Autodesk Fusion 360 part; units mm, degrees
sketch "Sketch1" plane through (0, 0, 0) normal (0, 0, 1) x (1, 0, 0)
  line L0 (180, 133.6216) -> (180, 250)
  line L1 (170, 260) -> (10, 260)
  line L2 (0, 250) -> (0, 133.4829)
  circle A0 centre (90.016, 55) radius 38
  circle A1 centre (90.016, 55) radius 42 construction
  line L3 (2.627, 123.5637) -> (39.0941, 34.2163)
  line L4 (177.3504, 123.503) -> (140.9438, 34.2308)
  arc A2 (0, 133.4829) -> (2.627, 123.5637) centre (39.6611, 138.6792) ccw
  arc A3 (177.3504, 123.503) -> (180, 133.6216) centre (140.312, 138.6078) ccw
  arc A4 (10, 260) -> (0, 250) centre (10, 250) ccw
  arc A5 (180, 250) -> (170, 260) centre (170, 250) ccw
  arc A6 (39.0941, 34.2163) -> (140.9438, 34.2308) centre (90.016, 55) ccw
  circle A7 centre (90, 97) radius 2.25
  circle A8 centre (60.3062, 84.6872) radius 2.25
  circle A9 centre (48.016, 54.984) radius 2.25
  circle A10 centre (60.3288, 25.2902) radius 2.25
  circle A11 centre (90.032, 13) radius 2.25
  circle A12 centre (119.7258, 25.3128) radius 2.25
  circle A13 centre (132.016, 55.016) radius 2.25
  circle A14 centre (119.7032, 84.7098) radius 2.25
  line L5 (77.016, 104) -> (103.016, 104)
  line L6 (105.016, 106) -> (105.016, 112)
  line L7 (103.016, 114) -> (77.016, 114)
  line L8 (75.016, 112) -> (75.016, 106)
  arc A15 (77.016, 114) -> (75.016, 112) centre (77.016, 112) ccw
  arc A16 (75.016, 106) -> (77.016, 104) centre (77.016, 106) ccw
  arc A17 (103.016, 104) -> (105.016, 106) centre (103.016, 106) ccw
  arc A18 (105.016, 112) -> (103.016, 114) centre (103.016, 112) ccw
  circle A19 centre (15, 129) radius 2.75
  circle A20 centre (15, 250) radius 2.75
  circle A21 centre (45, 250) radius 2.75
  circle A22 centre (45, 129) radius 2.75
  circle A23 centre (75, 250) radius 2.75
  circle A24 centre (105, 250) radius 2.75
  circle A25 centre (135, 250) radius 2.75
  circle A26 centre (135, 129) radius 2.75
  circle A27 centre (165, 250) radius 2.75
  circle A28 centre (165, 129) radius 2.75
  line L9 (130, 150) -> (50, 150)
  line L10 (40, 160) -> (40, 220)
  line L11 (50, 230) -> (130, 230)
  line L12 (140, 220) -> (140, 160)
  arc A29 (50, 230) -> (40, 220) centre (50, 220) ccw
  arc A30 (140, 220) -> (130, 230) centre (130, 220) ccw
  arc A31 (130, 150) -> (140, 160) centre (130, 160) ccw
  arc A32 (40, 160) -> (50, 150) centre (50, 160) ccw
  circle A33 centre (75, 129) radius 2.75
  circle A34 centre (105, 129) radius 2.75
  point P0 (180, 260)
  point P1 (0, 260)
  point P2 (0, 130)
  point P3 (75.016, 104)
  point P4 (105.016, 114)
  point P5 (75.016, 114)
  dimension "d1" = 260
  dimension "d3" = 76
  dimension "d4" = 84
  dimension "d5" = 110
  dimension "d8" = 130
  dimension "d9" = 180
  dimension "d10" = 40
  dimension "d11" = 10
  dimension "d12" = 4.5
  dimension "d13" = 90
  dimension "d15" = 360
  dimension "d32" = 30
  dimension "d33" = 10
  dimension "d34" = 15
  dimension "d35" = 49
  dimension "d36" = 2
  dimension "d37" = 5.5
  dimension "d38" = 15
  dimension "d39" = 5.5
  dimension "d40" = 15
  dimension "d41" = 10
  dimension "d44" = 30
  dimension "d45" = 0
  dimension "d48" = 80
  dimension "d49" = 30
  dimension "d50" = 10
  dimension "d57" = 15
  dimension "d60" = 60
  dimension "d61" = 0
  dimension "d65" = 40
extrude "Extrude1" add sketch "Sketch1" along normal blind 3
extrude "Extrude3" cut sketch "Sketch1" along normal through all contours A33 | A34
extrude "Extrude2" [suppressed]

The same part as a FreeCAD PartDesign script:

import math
import FreeCAD as App
import Part
import Sketcher

V = App.Vector

doc = App.newDocument("Part")
body = doc.addObject("PartDesign::Body", "Body")

sketch1 = body.newObject("Sketcher::SketchObject", "Sketch")
sketch1.AttachmentSupport = (doc.getObject("XY_Plane"), [""])
sketch1.MapMode = "FlatFace"
sketch1.addGeometry(Part.ArcOfCircle(Part.Circle(V(140.3, 138.6, 0), V(0, 0, 1), 40), math.radians(-22.19), math.radians(-7.16)), False)
sketch1.addGeometry(Part.LineSegment(V(180, 133.6, 0), V(180, 250, 0)), False)
sketch1.addGeometry(Part.ArcOfCircle(Part.Circle(V(170, 250, 0), V(0, 0, 1), 10), math.radians(0), math.radians(90)), False)
sketch1.addGeometry(Part.LineSegment(V(170, 260, 0), V(10, 260, 0)), False)
sketch1.addGeometry(Part.ArcOfCircle(Part.Circle(V(10, 250, 0), V(0, 0, 1), 10), math.radians(90), math.radians(180)), False)
sketch1.addGeometry(Part.LineSegment(V(0, 250, 0), V(0, 133.5, 0)), False)
sketch1.addGeometry(Part.ArcOfCircle(Part.Circle(V(39.7, 138.7, 0), V(0, 0, 1), 40), math.radians(-172.54), math.radians(-157.8)), False)
sketch1.addGeometry(Part.LineSegment(V(2.6, 123.6, 0), V(39.1, 34.2, 0)), False)
sketch1.addGeometry(Part.ArcOfCircle(Part.Circle(V(90, 55, 0), V(0, 0, 1), 55), math.radians(-158), math.radians(-22)), False)
sketch1.addGeometry(Part.LineSegment(V(140.9, 34.2, 0), V(177.4, 123.5, 0)), False)
sketch1.addGeometry(Part.Circle(V(60.3, 25.3, 0), V(0, 0, 1), 2.2), False)
sketch1.addGeometry(Part.Circle(V(48, 55, 0), V(0, 0, 1), 2.2), False)
sketch1.addGeometry(Part.Circle(V(15, 129, 0), V(0, 0, 1), 2.8), False)
sketch1.addGeometry(Part.Circle(V(60.3, 84.7, 0), V(0, 0, 1), 2.2), False)
sketch1.addGeometry(Part.Circle(V(45, 129, 0), V(0, 0, 1), 2.8), False)
sketch1.addGeometry(Part.Circle(V(75, 129, 0), V(0, 0, 1), 2.8), False)
sketch1.addGeometry(Part.Circle(V(90, 13, 0), V(0, 0, 1), 2.2), False)
sketch1.addGeometry(Part.Circle(V(119.7, 25.3, 0), V(0, 0, 1), 2.2), False)
sketch1.addGeometry(Part.Circle(V(90, 55, 0), V(0, 0, 1), 38), False)
sketch1.addGeometry(Part.Circle(V(132, 55, 0), V(0, 0, 1), 2.2), False)
sketch1.addGeometry(Part.Circle(V(90, 97, 0), V(0, 0, 1), 2.2), False)
sketch1.addGeometry(Part.Circle(V(119.7, 84.7, 0), V(0, 0, 1), 2.2), False)
sketch1.addGeometry(Part.LineSegment(V(103, 104, 0), V(77, 104, 0)), False)
sketch1.addGeometry(Part.ArcOfCircle(Part.Circle(V(77, 106, 0), V(0, 0, 1), 2), math.radians(180), math.radians(270)), False)
sketch1.addGeometry(Part.LineSegment(V(75, 106, 0), V(75, 112, 0)), False)
sketch1.addGeometry(Part.ArcOfCircle(Part.Circle(V(77, 112, 0), V(0, 0, 1), 2), math.radians(90), math.radians(180)), False)
sketch1.addGeometry(Part.LineSegment(V(77, 114, 0), V(103, 114, 0)), False)
sketch1.addGeometry(Part.ArcOfCircle(Part.Circle(V(103, 112, 0), V(0, 0, 1), 2), math.radians(0), math.radians(90)), False)
sketch1.addGeometry(Part.LineSegment(V(105, 112, 0), V(105, 106, 0)), False)
sketch1.addGeometry(Part.ArcOfCircle(Part.Circle(V(103, 106, 0), V(0, 0, 1), 2), math.radians(-90), math.radians(0)), False)
sketch1.addGeometry(Part.Circle(V(105, 129, 0), V(0, 0, 1), 2.8), False)
sketch1.addGeometry(Part.Circle(V(135, 129, 0), V(0, 0, 1), 2.8), False)
sketch1.addGeometry(Part.Circle(V(165, 129, 0), V(0, 0, 1), 2.8), False)
sketch1.addGeometry(Part.Circle(V(15, 250, 0), V(0, 0, 1), 2.8), False)
sketch1.addGeometry(Part.Circle(V(45, 250, 0), V(0, 0, 1), 2.8), False)
sketch1.addGeometry(Part.Circle(V(75, 250, 0), V(0, 0, 1), 2.8), False)
sketch1.addGeometry(Part.ArcOfCircle(Part.Circle(V(130, 160, 0), V(0, 0, 1), 10), math.radians(-90), math.radians(0)), False)
sketch1.addGeometry(Part.LineSegment(V(130, 150, 0), V(50, 150, 0)), False)
sketch1.addGeometry(Part.ArcOfCircle(Part.Circle(V(50, 160, 0), V(0, 0, 1), 10), math.radians(180), math.radians(270)), False)
sketch1.addGeometry(Part.LineSegment(V(40, 160, 0), V(40, 220, 0)), False)
sketch1.addGeometry(Part.ArcOfCircle(Part.Circle(V(50, 220, 0), V(0, 0, 1), 10), math.radians(90), math.radians(180)), False)
sketch1.addGeometry(Part.LineSegment(V(50, 230, 0), V(130, 230, 0)), False)
sketch1.addGeometry(Part.ArcOfCircle(Part.Circle(V(130, 220, 0), V(0, 0, 1), 10), math.radians(0), math.radians(90)), False)
sketch1.addGeometry(Part.LineSegment(V(140, 220, 0), V(140, 160, 0)), False)
sketch1.addGeometry(Part.Circle(V(105, 250, 0), V(0, 0, 1), 2.8), False)
sketch1.addGeometry(Part.Circle(V(135, 250, 0), V(0, 0, 1), 2.8), False)
sketch1.addGeometry(Part.Circle(V(165, 250, 0), V(0, 0, 1), 2.8), False)
sketch1.addConstraint(Sketcher.Constraint("Coincident", 0, 2, 1, 1))
sketch1.addConstraint(Sketcher.Constraint("Tangent", 1, 2, 2, 1))
sketch1.addConstraint(Sketcher.Constraint("Tangent", 2, 2, 3, 1))
sketch1.addConstraint(Sketcher.Constraint("Tangent", 3, 2, 4, 1))
sketch1.addConstraint(Sketcher.Constraint("Tangent", 4, 2, 5, 1))
sketch1.addConstraint(Sketcher.Constraint("Coincident", 5, 2, 6, 1))
sketch1.addConstraint(Sketcher.Constraint("Tangent", 6, 2, 7, 1))
sketch1.addConstraint(Sketcher.Constraint("Tangent", 7, 2, 8, 1))
sketch1.addConstraint(Sketcher.Constraint("Tangent", 8, 2, 9, 1))
sketch1.addConstraint(Sketcher.Constraint("Tangent", 9, 2, 0, 1))
sketch1.addConstraint(Sketcher.Constraint("Tangent", 22, 2, 23, 2))
sketch1.addConstraint(Sketcher.Constraint("Tangent", 23, 1, 24, 1))
sketch1.addConstraint(Sketcher.Constraint("Tangent", 24, 2, 25, 2))
sketch1.addConstraint(Sketcher.Constraint("Tangent", 25, 1, 26, 1))
sketch1.addConstraint(Sketcher.Constraint("Tangent", 26, 2, 27, 2))
sketch1.addConstraint(Sketcher.Constraint("Tangent", 27, 1, 28, 1))
sketch1.addConstraint(Sketcher.Constraint("Tangent", 28, 2, 29, 2))
sketch1.addConstraint(Sketcher.Constraint("Tangent", 29, 1, 22, 1))
sketch1.addConstraint(Sketcher.Constraint("Tangent", 36, 1, 37, 1))
sketch1.addConstraint(Sketcher.Constraint("Tangent", 37, 2, 38, 2))
sketch1.addConstraint(Sketcher.Constraint("Tangent", 38, 1, 39, 1))
sketch1.addConstraint(Sketcher.Constraint("Tangent", 39, 2, 40, 2))
sketch1.addConstraint(Sketcher.Constraint("Tangent", 40, 1, 41, 1))
sketch1.addConstraint(Sketcher.Constraint("Tangent", 41, 2, 42, 2))
sketch1.addConstraint(Sketcher.Constraint("Tangent", 42, 1, 43, 1))
sketch1.addConstraint(Sketcher.Constraint("Tangent", 43, 2, 36, 2))
sketch1.addConstraint(Sketcher.Constraint("Vertical", 1))
sketch1.addConstraint(Sketcher.Constraint("Horizontal", 3))
sketch1.addConstraint(Sketcher.Constraint("Vertical", 5))
sketch1.addConstraint(Sketcher.Constraint("Horizontal", 22))
sketch1.addConstraint(Sketcher.Constraint("Vertical", 24))
sketch1.addConstraint(Sketcher.Constraint("Horizontal", 26))
sketch1.addConstraint(Sketcher.Constraint("Vertical", 28))
sketch1.addConstraint(Sketcher.Constraint("Horizontal", 37))
sketch1.addConstraint(Sketcher.Constraint("Vertical", 39))
sketch1.addConstraint(Sketcher.Constraint("Horizontal", 41))
sketch1.addConstraint(Sketcher.Constraint("Vertical", 43))
sketch1.addConstraint(Sketcher.Constraint("Coincident", 18, 3, 8, 3))
sketch1.addConstraint(Sketcher.Constraint("Equal", 2, 4))
sketch1.addConstraint(Sketcher.Constraint("Equal", 10, 11))
sketch1.addConstraint(Sketcher.Constraint("Equal", 11, 13))
sketch1.addConstraint(Sketcher.Constraint("Equal", 12, 14))
sketch1.addConstraint(Sketcher.Constraint("Equal", 14, 15))
sketch1.addConstraint(Sketcher.Constraint("Equal", 13, 16))
sketch1.addConstraint(Sketcher.Constraint("Equal", 16, 17))
sketch1.addConstraint(Sketcher.Constraint("Equal", 17, 19))
sketch1.addConstraint(Sketcher.Constraint("Equal", 19, 20))
sketch1.addConstraint(Sketcher.Constraint("Equal", 20, 21))
sketch1.addConstraint(Sketcher.Constraint("Equal", 23, 25))
sketch1.addConstraint(Sketcher.Constraint("Equal", 25, 27))
sketch1.addConstraint(Sketcher.Constraint("Equal", 27, 29))
sketch1.addConstraint(Sketcher.Constraint("Equal", 15, 30))
sketch1.addConstraint(Sketcher.Constraint("Equal", 30, 31))
sketch1.addConstraint(Sketcher.Constraint("Equal", 31, 32))
sketch1.addConstraint(Sketcher.Constraint("Equal", 32, 33))
sketch1.addConstraint(Sketcher.Constraint("Equal", 33, 34))
sketch1.addConstraint(Sketcher.Constraint("Equal", 34, 35))
sketch1.addConstraint(Sketcher.Constraint("Equal", 4, 36))
sketch1.addConstraint(Sketcher.Constraint("Equal", 36, 38))
sketch1.addConstraint(Sketcher.Constraint("Equal", 38, 40))
sketch1.addConstraint(Sketcher.Constraint("Equal", 40, 42))
sketch1.addConstraint(Sketcher.Constraint("Equal", 35, 44))
sketch1.addConstraint(Sketcher.Constraint("Equal", 44, 45))
sketch1.addConstraint(Sketcher.Constraint("Equal", 45, 46))
sketch1.addConstraint(Sketcher.Constraint("PointOnObject", 4, 2, -2))
sketch1.addConstraint(Sketcher.Constraint("Horizontal", 12, 3, 14, 3))
sketch1.addConstraint(Sketcher.Constraint("Horizontal", 14, 3, 15, 3))
sketch1.addConstraint(Sketcher.Constraint("Horizontal", 15, 3, 30, 3))
sketch1.addConstraint(Sketcher.Constraint("Horizontal", 30, 3, 31, 3))
sketch1.addConstraint(Sketcher.Constraint("Horizontal", 31, 3, 32, 3))
sketch1.addConstraint(Sketcher.Constraint("Horizontal", 4, 3, 33, 3))
sketch1.addConstraint(Sketcher.Constraint("Horizontal", 33, 3, 34, 3))
sketch1.addConstraint(Sketcher.Constraint("Horizontal", 34, 3, 35, 3))
sketch1.addConstraint(Sketcher.Constraint("Horizontal", 35, 3, 44, 3))
sketch1.addConstraint(Sketcher.Constraint("Horizontal", 44, 3, 45, 3))
sketch1.addConstraint(Sketcher.Constraint("Horizontal", 45, 3, 46, 3))
sketch1.addConstraint(Sketcher.Constraint("Vertical", 12, 3, 33, 3))
sketch1.addConstraint(Sketcher.Constraint("Vertical", 14, 3, 34, 3))
sketch1.addConstraint(Sketcher.Constraint("Vertical", 15, 3, 35, 3))
sketch1.addConstraint(Sketcher.Constraint("Vertical", 30, 3, 44, 3))
sketch1.addConstraint(Sketcher.Constraint("Vertical", 31, 3, 45, 3))
sketch1.addConstraint(Sketcher.Constraint("Vertical", 32, 3, 46, 3))
sketch1.addConstraint(Sketcher.Constraint("Diameter", 18, 76.0))
sketch1.addConstraint(Sketcher.Constraint("Radius", 2, 10.0))
sketch1.addConstraint(Sketcher.Constraint("Radius", 8, 55.0))
sketch1.addConstraint(Sketcher.Constraint("Radius", 23, 2.0))
sketch1.addConstraint(Sketcher.Constraint("Diameter", 10, 4.5))
sketch1.addConstraint(Sketcher.Constraint("Diameter", 12, 5.5))
sketch1.addConstraint(Sketcher.Constraint("DistanceX", 37, 2, 37, 1, 80.0))
sketch1.addConstraint(Sketcher.Constraint("DistanceY", 39, 1, 39, 2, 60.0))
sketch1.addConstraint(Sketcher.Constraint("DistanceX", -1, 1, 12, 3, 15.0))
sketch1.addConstraint(Sketcher.Constraint("DistanceX", -1, 1, 20, 3, 90.0))
sketch1.addConstraint(Sketcher.Constraint("DistanceX", -1, 1, 36, 3, 130.0))
sketch1.addConstraint(Sketcher.Constraint("DistanceX", -1, 1, 0, 2, 180.0))
sketch1.addConstraint(Sketcher.Constraint("DistanceY", -1, 1, 2, 2, 260.0))
sketch1.addConstraint(Sketcher.Constraint("DistanceX", 12, 3, 14, 3, 30.0))
sketch1.addConstraint(Sketcher.Constraint("DistanceX", 14, 3, 15, 3, 30.0))
sketch1.addConstraint(Sketcher.Constraint("DistanceY", 20, 3, 25, 3, 15.0))
sketch1.addConstraint(Sketcher.Constraint("DistanceX", 15, 3, 30, 3, 30.0))
sketch1.addConstraint(Sketcher.Constraint("DistanceX", 30, 3, 31, 3, 30.0))
sketch1.addConstraint(Sketcher.Constraint("DistanceX", 31, 3, 32, 3, 30.0))
sketch1.addConstraint(Sketcher.Constraint("DistanceY", 40, 3, 34, 3, 30.0))
sketch1.addConstraint(Sketcher.Constraint("DistanceY", 22, 2, 25, 1, 10.0))
sketch1.addConstraint(Sketcher.Constraint("DistanceY", 26, 2, 30, 3, 15.0))
sketch1.addConstraint(Sketcher.Constraint("DistanceX", 22, 2, 22, 1, 26.0))
sketch1.addConstraint(Sketcher.Constraint("DistanceY", -1, 1, 8, 3, 55.0))
sketch1.addConstraint(Sketcher.Constraint("DistanceY", -1, 1, 12, 3, 129.0))
sketch1.addConstraint(Sketcher.Constraint("DistanceY", -1, 1, 16, 3, 13.0))
sketch1.addConstraint(Sketcher.Constraint("Radius", 0, 40.001))
sketch1.addConstraint(Sketcher.Constraint("Radius", 6, 39.999))
sketch1.addConstraint(Sketcher.Constraint("DistanceX", 11, 3, 8, 3, 42.0))
sketch1.addConstraint(Sketcher.Constraint("DistanceX", 8, 3, 19, 3, 42.0))
sketch1.addConstraint(Sketcher.Constraint("DistanceY", 5, 2, 5, 1, 116.517))
sketch1.addConstraint(Sketcher.Constraint("DistanceX", -1, 1, 6, 3, 39.66))
sketch1.addConstraint(Sketcher.Constraint("Distance", 7, 96.503))
sketch1.addConstraint(Sketcher.Constraint("DistanceY", 1, 1, 1, 2, 116.3784))
sketch1.addConstraint(Sketcher.Constraint("DistanceX", -1, 1, 0, 3, 140.311))
sketch1.addConstraint(Sketcher.Constraint("DistanceY", -1, 1, 11, 3, 54.984))
sketch1.addConstraint(Sketcher.Constraint("DistanceX", -1, 1, 16, 3, 90.032))
sketch1.addConstraint(Sketcher.Constraint("DistanceY", -1, 1, 19, 3, 55.016))
sketch1.addConstraint(Sketcher.Constraint("DistanceX", -1, 1, 23, 3, 77.016))
sketch1.addConstraint(Sketcher.Constraint("DistanceY", 10, 3, 0, 3, 113.318))
sketch1.addConstraint(Sketcher.Constraint("DistanceY", 10, 3, 13, 3, 59.397))
sketch1.addConstraint(Sketcher.Constraint("DistanceX", 10, 3, 17, 3, 59.397))
sketch1.addConstraint(Sketcher.Constraint("DistanceX", 7, 2, 13, 3, 21.212))
sketch1.addConstraint(Sketcher.Constraint("DistanceX", 17, 3, 8, 2, 21.218))
sketch1.addConstraint(Sketcher.Constraint("DistanceY", 17, 3, 8, 2, 8.918))
sketch1.addConstraint(Sketcher.Constraint("DistanceY", 8, 2, 21, 3, 50.479))
sketch1.addConstraint(Sketcher.Constraint("DistanceX", -1, 1, 21, 3, 119.7032))
pad1 = body.newObject("PartDesign::Pad", "Pad")
pad1.Profile = sketch1
pad1.Length = 3

sketch2 = body.newObject("Sketcher::SketchObject", "Sketch001")
sketch2.AttachmentSupport = (doc.getObject("XY_Plane"), [""])
sketch2.MapMode = "FlatFace"
sketch2.addGeometry(Part.Circle(V(75, 129, 0), V(0, 0, 1), 2.8), False)
sketch2.addGeometry(Part.Circle(V(105, 129, 0), V(0, 0, 1), 2.8), False)
sketch2.addConstraint(Sketcher.Constraint("Equal", 0, 1))
sketch2.addConstraint(Sketcher.Constraint("Horizontal", 0, 3, 1, 3))
sketch2.addConstraint(Sketcher.Constraint("Diameter", 0, 5.5))
sketch2.addConstraint(Sketcher.Constraint("DistanceX", 0, 3, 1, 3, 30.0))
sketch2.addConstraint(Sketcher.Constraint("DistanceX", -1, 1, 0, 3, 75.0))
sketch2.addConstraint(Sketcher.Constraint("DistanceY", -1, 1, 0, 3, 129.0))
pocket1 = body.newObject("PartDesign::Pocket", "Pocket")
pocket1.Profile = sketch2
pocket1.Type = "ThroughAll"
pocket1.Reversed = True

doc.recompute()
